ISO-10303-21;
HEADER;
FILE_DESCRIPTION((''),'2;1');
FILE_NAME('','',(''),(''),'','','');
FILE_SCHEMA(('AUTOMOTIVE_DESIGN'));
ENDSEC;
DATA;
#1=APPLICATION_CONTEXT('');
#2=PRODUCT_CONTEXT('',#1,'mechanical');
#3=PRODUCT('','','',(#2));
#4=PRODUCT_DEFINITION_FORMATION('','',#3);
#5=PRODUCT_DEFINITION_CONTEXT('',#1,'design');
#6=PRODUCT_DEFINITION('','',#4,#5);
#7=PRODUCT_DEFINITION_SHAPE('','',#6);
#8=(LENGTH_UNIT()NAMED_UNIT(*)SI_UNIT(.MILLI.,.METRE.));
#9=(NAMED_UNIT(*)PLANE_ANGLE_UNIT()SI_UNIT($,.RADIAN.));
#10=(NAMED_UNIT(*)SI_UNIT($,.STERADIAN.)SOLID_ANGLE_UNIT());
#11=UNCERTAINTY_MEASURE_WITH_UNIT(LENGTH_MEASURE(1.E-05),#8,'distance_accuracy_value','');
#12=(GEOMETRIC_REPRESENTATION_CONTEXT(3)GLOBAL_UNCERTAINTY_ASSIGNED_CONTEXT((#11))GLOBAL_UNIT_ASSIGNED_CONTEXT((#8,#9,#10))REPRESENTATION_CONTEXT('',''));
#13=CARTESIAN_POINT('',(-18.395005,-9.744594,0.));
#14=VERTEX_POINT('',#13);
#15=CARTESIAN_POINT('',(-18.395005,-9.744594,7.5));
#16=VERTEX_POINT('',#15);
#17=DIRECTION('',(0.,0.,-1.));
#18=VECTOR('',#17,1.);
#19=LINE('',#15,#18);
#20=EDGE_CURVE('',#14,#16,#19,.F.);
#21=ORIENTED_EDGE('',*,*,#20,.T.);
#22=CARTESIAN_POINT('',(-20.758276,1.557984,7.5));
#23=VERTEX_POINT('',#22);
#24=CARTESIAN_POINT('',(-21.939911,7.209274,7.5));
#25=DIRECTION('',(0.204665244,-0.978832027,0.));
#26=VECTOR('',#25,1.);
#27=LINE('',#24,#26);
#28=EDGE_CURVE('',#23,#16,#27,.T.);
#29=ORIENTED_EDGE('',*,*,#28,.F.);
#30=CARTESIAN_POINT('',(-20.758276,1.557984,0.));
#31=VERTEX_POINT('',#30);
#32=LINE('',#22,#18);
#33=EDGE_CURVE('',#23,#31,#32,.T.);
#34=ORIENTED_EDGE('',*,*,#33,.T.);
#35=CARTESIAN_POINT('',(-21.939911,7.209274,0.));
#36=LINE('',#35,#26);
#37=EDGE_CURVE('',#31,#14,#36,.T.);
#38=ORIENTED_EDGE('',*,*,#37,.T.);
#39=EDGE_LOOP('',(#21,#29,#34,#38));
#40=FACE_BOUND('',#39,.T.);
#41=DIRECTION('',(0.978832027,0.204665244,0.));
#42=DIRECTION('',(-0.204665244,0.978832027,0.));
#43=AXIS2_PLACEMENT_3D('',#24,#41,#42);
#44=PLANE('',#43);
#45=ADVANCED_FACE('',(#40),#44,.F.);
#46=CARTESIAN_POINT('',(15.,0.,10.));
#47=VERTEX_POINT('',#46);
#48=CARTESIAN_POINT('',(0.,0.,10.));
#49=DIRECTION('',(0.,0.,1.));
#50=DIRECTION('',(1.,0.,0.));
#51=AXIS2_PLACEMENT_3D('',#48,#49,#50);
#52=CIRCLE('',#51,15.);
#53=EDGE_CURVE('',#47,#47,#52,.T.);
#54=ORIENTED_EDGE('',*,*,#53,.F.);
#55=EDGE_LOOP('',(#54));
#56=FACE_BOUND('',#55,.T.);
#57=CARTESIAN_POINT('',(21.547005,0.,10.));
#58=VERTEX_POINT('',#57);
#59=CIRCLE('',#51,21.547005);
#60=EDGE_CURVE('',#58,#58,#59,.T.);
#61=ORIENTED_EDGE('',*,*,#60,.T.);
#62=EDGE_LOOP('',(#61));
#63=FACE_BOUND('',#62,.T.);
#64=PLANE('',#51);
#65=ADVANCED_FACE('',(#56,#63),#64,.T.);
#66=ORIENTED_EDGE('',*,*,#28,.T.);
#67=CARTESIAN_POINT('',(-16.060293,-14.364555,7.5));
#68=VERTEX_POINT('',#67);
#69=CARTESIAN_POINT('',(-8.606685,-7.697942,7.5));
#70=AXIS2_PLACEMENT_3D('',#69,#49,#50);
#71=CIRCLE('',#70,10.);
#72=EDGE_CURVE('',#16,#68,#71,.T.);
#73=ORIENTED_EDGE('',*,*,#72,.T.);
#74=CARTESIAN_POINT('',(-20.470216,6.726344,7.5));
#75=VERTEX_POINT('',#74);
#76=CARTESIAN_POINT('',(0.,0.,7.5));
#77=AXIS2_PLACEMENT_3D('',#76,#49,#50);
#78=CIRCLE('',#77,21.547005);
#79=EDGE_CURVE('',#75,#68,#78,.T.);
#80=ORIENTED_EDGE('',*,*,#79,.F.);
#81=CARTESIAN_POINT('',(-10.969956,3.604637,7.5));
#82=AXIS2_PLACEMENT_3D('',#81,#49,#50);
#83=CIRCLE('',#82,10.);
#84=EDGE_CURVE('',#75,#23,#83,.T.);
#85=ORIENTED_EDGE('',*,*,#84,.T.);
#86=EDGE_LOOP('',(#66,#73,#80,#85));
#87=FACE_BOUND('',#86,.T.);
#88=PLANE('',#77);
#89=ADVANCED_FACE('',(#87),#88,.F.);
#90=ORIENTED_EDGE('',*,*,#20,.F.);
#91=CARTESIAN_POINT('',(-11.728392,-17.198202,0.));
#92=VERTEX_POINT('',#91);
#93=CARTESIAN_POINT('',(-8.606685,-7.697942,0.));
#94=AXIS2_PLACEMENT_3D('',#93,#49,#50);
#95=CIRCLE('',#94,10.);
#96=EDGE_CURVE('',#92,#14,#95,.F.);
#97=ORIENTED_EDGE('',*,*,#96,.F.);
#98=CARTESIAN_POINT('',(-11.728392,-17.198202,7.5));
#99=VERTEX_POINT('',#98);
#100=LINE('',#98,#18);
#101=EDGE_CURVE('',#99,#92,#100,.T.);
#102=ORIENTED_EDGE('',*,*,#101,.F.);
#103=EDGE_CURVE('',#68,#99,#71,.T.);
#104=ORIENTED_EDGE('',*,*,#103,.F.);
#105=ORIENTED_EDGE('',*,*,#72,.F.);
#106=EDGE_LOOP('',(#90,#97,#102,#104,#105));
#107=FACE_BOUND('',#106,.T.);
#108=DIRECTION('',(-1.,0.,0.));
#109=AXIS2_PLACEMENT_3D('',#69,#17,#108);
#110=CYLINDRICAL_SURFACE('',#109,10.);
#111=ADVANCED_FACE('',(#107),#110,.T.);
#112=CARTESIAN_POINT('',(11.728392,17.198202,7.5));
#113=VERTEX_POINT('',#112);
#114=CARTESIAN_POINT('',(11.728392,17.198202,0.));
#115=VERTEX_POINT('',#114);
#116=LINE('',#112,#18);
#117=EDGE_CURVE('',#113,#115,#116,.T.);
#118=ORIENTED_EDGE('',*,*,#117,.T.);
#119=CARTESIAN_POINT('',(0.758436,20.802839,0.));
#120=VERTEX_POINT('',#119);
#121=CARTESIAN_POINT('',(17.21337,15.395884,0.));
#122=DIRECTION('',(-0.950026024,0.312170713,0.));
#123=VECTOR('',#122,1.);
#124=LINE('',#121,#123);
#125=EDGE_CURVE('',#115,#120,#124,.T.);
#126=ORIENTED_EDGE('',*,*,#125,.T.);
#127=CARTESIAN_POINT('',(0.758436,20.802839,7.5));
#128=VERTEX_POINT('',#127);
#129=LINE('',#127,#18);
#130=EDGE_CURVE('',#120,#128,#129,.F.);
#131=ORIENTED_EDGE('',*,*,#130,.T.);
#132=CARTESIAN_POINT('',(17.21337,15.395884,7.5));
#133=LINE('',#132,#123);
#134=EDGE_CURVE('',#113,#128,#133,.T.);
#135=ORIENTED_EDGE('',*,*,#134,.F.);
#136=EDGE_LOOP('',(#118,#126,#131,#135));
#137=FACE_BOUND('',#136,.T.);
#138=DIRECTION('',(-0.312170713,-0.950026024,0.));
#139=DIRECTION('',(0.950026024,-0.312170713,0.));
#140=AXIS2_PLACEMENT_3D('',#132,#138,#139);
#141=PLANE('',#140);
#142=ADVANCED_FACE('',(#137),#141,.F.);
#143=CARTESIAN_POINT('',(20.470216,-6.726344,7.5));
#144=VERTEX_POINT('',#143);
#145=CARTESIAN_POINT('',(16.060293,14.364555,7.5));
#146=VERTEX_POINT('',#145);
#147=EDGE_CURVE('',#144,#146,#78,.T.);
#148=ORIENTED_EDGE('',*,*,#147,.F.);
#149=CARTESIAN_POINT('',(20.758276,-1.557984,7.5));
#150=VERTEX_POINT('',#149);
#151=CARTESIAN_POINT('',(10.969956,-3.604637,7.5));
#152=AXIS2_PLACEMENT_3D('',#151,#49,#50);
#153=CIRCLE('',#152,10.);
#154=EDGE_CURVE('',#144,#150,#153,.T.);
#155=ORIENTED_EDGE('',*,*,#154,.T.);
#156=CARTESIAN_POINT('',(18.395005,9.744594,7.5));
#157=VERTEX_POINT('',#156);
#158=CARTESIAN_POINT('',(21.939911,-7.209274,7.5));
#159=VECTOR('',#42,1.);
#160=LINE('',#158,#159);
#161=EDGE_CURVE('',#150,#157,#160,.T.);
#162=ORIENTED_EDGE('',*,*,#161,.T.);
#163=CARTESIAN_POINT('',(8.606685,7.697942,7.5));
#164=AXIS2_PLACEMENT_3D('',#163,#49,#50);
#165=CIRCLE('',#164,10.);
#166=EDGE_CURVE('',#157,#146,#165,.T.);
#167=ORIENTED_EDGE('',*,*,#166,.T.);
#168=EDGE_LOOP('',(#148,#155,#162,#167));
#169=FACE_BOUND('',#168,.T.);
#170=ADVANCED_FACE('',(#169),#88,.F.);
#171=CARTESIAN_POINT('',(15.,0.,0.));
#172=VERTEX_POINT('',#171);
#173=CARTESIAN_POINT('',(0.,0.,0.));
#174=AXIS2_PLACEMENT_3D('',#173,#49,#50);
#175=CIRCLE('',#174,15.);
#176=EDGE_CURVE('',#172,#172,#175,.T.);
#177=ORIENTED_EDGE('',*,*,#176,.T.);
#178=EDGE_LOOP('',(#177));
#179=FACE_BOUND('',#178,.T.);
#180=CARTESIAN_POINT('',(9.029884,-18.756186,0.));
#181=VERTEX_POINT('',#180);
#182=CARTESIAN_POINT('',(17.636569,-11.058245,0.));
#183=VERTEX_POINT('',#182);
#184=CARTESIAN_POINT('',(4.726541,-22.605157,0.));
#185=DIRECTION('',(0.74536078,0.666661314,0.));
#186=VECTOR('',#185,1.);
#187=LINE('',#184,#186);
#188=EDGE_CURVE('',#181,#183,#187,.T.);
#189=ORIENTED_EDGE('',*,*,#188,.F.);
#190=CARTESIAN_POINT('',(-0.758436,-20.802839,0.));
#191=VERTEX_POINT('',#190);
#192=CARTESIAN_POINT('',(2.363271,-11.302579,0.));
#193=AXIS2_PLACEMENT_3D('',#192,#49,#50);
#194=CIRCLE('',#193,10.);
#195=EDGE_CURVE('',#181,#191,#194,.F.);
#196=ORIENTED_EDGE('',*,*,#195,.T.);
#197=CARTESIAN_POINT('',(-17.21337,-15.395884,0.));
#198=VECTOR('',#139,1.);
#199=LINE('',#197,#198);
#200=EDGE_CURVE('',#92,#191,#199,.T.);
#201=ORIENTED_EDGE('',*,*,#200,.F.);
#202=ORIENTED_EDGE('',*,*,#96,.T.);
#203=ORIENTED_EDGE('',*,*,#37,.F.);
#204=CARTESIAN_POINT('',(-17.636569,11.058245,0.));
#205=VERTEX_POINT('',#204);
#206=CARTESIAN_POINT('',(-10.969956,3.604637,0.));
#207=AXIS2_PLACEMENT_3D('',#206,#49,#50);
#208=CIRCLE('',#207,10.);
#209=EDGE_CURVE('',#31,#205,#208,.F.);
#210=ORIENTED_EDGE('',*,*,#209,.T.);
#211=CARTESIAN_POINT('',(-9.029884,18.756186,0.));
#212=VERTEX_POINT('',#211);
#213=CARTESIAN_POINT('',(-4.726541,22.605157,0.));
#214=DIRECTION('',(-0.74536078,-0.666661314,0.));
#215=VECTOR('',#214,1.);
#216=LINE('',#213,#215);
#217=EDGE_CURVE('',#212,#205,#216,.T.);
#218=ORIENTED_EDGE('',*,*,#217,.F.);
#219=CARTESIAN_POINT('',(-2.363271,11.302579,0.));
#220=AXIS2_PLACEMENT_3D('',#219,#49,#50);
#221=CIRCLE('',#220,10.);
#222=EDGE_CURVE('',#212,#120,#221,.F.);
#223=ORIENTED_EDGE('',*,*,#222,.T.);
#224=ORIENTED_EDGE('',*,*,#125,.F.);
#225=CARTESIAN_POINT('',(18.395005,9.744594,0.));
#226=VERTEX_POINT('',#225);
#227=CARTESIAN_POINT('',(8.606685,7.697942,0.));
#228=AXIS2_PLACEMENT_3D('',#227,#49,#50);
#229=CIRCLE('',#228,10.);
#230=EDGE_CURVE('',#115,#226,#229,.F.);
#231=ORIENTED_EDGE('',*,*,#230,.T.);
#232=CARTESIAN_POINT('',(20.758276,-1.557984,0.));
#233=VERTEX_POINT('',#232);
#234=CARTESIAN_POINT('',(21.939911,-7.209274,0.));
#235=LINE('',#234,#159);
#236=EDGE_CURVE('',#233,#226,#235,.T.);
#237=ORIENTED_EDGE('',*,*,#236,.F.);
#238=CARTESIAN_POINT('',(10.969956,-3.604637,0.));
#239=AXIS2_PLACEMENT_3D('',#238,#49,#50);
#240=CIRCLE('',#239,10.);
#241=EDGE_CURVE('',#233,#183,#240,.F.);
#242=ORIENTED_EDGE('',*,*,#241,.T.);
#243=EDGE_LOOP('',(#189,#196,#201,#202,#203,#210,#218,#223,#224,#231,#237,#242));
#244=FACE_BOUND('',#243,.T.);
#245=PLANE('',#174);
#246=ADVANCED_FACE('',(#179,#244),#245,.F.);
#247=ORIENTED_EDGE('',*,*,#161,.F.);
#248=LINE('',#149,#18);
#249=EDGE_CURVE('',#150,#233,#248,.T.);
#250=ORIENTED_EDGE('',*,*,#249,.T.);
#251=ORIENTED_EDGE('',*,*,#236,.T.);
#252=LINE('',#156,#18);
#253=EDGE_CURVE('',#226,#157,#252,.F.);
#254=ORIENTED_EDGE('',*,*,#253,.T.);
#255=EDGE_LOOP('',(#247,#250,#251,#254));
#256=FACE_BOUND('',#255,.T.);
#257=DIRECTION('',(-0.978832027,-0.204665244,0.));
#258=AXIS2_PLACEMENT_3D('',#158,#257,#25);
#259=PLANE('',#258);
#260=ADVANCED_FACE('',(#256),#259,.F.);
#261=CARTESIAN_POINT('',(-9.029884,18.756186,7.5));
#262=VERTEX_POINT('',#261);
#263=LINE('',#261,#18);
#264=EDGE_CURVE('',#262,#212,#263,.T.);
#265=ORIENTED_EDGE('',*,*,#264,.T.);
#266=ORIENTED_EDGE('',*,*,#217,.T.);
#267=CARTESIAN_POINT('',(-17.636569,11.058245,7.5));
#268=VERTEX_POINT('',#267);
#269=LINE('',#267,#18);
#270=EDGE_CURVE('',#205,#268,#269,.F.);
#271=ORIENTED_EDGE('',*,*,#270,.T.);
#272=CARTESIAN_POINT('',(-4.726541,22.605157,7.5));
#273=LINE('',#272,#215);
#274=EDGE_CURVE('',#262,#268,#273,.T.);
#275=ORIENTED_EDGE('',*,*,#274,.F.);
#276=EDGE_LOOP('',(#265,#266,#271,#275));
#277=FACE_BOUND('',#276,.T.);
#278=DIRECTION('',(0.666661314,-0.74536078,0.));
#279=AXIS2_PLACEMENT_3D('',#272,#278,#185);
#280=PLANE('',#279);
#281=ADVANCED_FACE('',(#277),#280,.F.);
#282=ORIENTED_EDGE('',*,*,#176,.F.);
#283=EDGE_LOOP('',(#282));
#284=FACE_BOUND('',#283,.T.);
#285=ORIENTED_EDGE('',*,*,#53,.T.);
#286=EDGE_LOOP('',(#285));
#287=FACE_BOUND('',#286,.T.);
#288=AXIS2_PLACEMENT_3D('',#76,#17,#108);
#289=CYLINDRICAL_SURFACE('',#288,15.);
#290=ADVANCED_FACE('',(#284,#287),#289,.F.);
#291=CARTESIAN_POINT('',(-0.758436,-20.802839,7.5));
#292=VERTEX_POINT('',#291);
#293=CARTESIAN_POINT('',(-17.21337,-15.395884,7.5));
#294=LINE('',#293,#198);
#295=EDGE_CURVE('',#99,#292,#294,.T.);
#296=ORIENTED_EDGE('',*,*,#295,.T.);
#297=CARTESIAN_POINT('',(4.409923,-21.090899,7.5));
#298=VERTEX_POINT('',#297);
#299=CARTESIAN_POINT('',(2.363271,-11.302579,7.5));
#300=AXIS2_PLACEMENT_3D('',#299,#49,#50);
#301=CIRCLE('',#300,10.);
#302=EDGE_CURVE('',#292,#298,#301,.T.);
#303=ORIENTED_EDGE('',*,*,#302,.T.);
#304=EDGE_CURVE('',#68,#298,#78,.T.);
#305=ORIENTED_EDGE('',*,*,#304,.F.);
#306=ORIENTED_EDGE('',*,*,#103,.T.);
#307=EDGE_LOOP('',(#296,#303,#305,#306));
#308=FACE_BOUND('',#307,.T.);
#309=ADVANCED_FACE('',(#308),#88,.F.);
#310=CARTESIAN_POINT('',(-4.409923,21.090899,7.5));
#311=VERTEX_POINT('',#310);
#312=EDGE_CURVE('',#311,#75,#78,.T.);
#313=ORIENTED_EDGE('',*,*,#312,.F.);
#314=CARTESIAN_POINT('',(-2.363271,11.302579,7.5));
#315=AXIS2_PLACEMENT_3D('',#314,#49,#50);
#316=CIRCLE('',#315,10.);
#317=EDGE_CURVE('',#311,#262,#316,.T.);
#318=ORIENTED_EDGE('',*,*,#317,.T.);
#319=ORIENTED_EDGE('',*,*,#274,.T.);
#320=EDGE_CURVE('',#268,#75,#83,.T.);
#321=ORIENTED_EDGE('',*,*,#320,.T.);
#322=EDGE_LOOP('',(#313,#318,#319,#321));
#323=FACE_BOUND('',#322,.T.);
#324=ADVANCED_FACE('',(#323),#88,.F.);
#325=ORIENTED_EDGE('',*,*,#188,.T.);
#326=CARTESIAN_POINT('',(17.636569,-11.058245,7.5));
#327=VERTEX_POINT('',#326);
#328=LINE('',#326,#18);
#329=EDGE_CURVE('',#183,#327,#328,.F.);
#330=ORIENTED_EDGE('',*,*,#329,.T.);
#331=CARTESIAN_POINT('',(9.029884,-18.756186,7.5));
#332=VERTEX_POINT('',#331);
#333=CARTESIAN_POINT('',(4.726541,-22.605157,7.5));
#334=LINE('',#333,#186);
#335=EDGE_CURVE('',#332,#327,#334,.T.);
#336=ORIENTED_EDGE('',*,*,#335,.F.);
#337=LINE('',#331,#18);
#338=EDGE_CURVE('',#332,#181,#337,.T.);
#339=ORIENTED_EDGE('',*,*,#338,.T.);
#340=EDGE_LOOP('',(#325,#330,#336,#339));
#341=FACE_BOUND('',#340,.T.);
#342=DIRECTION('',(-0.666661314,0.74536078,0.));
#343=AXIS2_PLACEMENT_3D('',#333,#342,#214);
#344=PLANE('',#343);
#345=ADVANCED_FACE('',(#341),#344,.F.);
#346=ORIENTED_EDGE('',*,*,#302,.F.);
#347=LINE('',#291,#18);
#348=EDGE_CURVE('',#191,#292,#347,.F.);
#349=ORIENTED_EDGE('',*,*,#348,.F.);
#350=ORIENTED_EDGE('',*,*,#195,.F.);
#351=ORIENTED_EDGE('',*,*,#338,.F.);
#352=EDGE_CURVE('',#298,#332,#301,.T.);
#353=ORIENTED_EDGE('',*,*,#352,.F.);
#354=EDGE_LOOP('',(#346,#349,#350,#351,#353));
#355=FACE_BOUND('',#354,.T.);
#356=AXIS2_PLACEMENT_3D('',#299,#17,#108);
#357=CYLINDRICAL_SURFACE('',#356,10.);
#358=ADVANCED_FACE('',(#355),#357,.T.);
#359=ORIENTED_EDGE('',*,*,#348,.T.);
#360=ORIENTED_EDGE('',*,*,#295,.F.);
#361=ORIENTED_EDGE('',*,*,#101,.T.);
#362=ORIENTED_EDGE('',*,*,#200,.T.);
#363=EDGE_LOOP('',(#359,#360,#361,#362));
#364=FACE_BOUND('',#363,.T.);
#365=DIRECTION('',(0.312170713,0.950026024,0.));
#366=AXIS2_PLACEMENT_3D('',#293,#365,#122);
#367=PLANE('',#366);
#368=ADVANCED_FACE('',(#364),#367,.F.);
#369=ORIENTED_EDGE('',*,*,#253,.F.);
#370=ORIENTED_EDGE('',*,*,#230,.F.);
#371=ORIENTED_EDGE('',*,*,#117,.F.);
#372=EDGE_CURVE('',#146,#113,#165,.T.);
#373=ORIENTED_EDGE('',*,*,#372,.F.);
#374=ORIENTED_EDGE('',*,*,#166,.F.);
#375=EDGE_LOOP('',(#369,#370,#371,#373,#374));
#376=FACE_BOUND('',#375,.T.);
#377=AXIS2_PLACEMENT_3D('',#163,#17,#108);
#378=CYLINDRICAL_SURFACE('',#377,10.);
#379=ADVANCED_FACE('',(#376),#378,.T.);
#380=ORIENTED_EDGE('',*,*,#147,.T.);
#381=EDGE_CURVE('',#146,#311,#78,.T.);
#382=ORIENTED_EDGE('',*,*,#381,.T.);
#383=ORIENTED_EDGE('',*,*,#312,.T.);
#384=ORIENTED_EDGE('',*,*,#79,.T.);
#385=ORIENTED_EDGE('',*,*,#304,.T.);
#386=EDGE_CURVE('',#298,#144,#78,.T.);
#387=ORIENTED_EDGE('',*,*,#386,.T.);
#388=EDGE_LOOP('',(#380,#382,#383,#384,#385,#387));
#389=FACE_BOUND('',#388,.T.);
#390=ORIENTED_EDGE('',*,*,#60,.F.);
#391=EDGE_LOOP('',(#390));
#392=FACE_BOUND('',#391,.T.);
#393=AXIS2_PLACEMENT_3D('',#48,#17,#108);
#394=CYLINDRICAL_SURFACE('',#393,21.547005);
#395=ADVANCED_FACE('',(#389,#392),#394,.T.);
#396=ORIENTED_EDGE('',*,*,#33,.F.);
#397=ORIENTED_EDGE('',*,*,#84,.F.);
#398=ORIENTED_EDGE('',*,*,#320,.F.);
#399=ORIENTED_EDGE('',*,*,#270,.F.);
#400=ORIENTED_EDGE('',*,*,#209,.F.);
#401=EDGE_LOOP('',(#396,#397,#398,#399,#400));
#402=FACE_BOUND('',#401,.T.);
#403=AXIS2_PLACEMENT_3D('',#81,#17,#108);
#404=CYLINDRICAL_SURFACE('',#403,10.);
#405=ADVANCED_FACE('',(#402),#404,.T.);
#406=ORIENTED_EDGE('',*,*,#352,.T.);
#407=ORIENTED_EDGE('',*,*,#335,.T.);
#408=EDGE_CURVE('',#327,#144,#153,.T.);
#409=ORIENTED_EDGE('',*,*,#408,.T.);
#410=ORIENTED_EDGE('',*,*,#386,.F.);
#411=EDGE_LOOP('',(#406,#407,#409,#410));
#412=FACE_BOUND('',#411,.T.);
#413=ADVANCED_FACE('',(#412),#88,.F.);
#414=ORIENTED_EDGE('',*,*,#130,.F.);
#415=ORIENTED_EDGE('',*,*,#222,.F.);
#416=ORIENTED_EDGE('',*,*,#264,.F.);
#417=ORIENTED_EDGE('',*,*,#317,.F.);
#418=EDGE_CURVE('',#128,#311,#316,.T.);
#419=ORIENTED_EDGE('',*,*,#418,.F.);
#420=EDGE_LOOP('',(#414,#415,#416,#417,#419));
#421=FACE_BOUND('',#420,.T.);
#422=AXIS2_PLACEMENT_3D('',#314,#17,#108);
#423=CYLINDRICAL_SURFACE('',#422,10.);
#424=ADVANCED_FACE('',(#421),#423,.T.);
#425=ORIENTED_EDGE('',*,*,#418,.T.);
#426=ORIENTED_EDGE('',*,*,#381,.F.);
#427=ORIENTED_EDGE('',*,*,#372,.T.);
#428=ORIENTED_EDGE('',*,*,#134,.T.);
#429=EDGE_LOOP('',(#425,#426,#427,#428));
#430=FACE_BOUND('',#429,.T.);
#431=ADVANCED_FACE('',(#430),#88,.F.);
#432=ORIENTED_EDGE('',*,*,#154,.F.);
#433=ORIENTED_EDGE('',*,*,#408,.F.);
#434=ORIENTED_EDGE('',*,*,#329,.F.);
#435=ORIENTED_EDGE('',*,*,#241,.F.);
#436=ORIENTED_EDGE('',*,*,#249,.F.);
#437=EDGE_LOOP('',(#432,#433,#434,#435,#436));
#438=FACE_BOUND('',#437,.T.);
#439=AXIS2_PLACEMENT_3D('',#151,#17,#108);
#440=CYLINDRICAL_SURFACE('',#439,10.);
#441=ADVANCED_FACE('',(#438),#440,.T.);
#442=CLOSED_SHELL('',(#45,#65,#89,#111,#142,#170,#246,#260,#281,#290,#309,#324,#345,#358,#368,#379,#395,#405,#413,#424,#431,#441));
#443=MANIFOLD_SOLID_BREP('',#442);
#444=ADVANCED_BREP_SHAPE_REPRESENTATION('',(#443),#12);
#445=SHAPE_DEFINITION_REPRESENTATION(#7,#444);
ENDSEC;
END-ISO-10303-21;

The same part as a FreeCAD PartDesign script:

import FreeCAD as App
import Part
import Sketcher

V = App.Vector
Q = App.Units.Quantity


def edges_at(feature, points):
    """Names of the edges that pass closest to the given points."""
    edges = feature.Shape.Edges
    near = lambda p: min(range(len(edges)), key=lambda i: edges[i].distToShape(Part.Vertex(*p))[0])
    return sorted({f"Edge{near(p) + 1}" for p in points})

doc = App.newDocument("Part")
params = doc.addObject("Spreadsheet::Sheet", "Params")
for row, (alias, value) in enumerate([
    ("sketch1_diameter", "30 mm"),
    ("pad1_length", "7.5 mm"),
    ("fillet_radius", "10 mm"),
    ("sketch2_diameter", "30 mm"),
    ("pad2_length", "2.5 mm"),
], start=1):
    params.set(f"A{row}", alias)
    params.set(f"B{row}", "=" + value)
    params.setAlias(f"B{row}", alias)

body = doc.addObject("PartDesign::Body", "Body")

sketch1 = doc.addObject("Sketcher::SketchObject", "Sketch")
body.addObject(sketch1)
sketch1.AttachmentSupport = (doc.XY_Plane, [""])
sketch1.MapMode = "FlatFace"
sketch1.addGeometry([
    Part.LineSegment(V(5, -23, 0), V(22, -7, 0)),
    Part.LineSegment(V(22, -7, 0), V(17, 15, 0)),
    Part.LineSegment(V(17, 15, 0), V(-5, 23, 0)),
    Part.LineSegment(V(-5, 23, 0), V(-22, 7, 0)),
    Part.LineSegment(V(-22, 7, 0), V(-17, -15, 0)),
    Part.LineSegment(V(-17, -15, 0), V(5, -23, 0)),
    Part.Circle(V(0, 0, 0), V(0, 0, 1), 15),
], False)
sketch1.addConstraint([
    Sketcher.Constraint("Coincident", 0, 2, 1, 1),
    Sketcher.Constraint("Coincident", 1, 2, 2, 1),
    Sketcher.Constraint("Coincident", 2, 2, 3, 1),
    Sketcher.Constraint("Coincident", 3, 2, 4, 1),
    Sketcher.Constraint("Coincident", 4, 2, 5, 1),
    Sketcher.Constraint("Coincident", 5, 2, 0, 1),
    Sketcher.Constraint("Coincident", 6, 3, -1, 1),
    Sketcher.Constraint("Symmetric", 0, 2, 3, 2, -1, 1),
    Sketcher.Constraint("Symmetric", 1, 2, 4, 2, -1, 1),
    Sketcher.Constraint("Symmetric", 2, 2, 5, 2, -1, 1),
    Sketcher.Constraint("Equal", 0, 1),
    Sketcher.Constraint("Equal", 1, 2),
    Sketcher.Constraint("Diameter", 6, Q("30 mm")),
    Sketcher.Constraint("Distance", 0, Q("23.094011 mm")),
    Sketcher.Constraint("DistanceX", -1, 1, 0, 2, Q("21.939911 mm")),
    Sketcher.Constraint("DistanceX", -1, 1, 1, 2, Q("17.21337 mm")),
    Sketcher.Constraint("DistanceX", 2, 2, -1, 1, Q("4.726541 mm")),
])
sketch1.setExpression("Constraints[12]", "Params.sketch1_diameter")
pad1 = doc.addObject("PartDesign::Pad", "Pad")
body.addObject(pad1)
pad1.Profile = sketch1
pad1.setExpression("Length", "Params.pad1_length")
doc.recompute()

fillet = doc.addObject("PartDesign::Fillet", "Fillet")
body.addObject(fillet)
fillet.Base = (pad1, edges_at(pad1, [
    (-17.213, -15.396, 3.75),
    (-21.94, 7.209, 3.75),
    (-4.727, 22.605, 3.75),
    (17.213, 15.396, 3.75),
    (21.94, -7.209, 3.75),
    (4.727, -22.605, 3.75),
]))
fillet.setExpression("Radius", "Params.fillet_radius")

sketch2 = doc.addObject("Sketcher::SketchObject", "Sketch001")
body.addObject(sketch2)
sketch2.AttachmentSupport = (doc.XY_Plane, [""])
sketch2.MapMode = "FlatFace"
sketch2.AttachmentOffset = App.Placement(V(0, 0, 7.5), App.Rotation())
sketch2.addGeometry([
    Part.Circle(V(0, 0, 0), V(0, 0, 1), 22),
    Part.Circle(V(0, 0, 0), V(0, 0, 1), 15),
], False)
sketch2.addConstraint([
    Sketcher.Constraint("Coincident", 0, 3, -1, 1),
    Sketcher.Constraint("Coincident", 1, 3, -1, 1),
    Sketcher.Constraint("Diameter", 1, Q("30 mm")),
    Sketcher.Constraint("Diameter", 0, Q("43.094011 mm")),
])
sketch2.setExpression("Constraints[2]", "Params.sketch2_diameter")
pad2 = doc.addObject("PartDesign::Pad", "Pad001")
body.addObject(pad2)
pad2.Profile = sketch2
pad2.setExpression("Length", "Params.pad2_length")

doc.recompute()
